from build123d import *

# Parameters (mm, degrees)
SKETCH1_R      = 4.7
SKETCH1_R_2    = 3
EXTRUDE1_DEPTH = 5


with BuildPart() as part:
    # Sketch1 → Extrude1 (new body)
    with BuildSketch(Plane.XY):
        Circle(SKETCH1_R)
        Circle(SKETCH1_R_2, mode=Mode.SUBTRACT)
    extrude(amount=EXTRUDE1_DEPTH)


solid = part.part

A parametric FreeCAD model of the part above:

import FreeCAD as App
import Part
import Sketcher

V = App.Vector
Q = App.Units.Quantity

doc = App.newDocument("Part")
body = doc.addObject("PartDesign::Body", "Body")

# Sketch on XY plane
sketch1 = body.newObject("Sketcher::SketchObject", "Sketch")
sketch1.AttachmentSupport = (doc.getObject("XY_Plane"), [""])
sketch1.MapMode = "FlatFace"
sketch1.addGeometry([
    Part.Circle(V(0, 0, 0), V(0, 0, 1), 4.7),
    Part.Circle(V(0, 0, 0), V(0, 0, 1), 3),
], False)
sketch1.addConstraint([
    Sketcher.Constraint("Coincident", 0, 3, -1, 1),
    Sketcher.Constraint("Coincident", 1, 3, -1, 1),
    Sketcher.Constraint("Diameter", 1, Q("6 mm")),
    Sketcher.Constraint("Diameter", 0, Q("9.4 mm")),
])
pad1 = body.newObject("PartDesign::Pad", "Pad")
pad1.Profile = sketch1
pad1.Length = 5

doc.recompute()
